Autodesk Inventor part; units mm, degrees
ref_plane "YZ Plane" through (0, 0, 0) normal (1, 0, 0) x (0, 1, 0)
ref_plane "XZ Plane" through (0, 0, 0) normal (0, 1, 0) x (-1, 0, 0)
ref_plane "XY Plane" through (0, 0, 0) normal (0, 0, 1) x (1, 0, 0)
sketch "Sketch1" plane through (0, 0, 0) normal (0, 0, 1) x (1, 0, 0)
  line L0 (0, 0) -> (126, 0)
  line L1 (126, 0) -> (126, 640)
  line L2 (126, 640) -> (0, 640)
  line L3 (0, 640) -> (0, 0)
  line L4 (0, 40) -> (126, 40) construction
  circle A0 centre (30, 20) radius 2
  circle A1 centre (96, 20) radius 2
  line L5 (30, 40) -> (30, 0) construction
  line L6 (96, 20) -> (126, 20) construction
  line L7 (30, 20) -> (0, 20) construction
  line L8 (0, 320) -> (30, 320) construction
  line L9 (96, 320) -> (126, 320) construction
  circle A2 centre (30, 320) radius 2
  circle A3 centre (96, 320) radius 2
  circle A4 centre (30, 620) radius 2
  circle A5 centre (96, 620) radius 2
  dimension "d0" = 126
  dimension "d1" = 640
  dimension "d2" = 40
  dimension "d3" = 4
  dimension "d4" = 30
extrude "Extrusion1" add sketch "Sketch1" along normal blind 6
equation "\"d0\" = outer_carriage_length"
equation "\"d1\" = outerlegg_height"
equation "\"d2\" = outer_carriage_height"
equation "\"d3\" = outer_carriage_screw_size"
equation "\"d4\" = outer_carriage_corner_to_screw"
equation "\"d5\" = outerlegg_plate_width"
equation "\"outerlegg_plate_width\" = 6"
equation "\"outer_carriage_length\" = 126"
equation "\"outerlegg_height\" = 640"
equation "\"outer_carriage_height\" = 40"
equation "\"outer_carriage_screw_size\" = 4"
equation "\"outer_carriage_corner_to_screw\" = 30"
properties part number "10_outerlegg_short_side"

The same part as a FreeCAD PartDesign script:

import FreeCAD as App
import Part
import Sketcher

V = App.Vector
Q = App.Units.Quantity


def add_polygon(sketch, points):
    """Adds a closed chain of lines whose ends are joined by coincident constraints."""
    first, n = sketch.GeometryCount, len(points)
    for a, b in zip(points, points[1:] + points[:1]):
        sketch.addGeometry(Part.LineSegment(App.Vector(*a, 0), App.Vector(*b, 0)), False)
    for i in range(n):
        sketch.addConstraint(Sketcher.Constraint("Coincident", first + i, 2, first + (i + 1) % n, 1))

doc = App.newDocument("Part")
body = doc.addObject("PartDesign::Body", "Body")

# Sketch on XY plane
sketch1 = body.newObject("Sketcher::SketchObject", "Sketch")
sketch1.AttachmentSupport = (doc.getObject("XY_Plane"), [""])
sketch1.MapMode = "FlatFace"
add_polygon(sketch1, [(0, 640), (0, 0), (126, 0), (126, 640)])  # lines 0-3
sketch1.addGeometry(Part.Circle(V(30, 20, 0), V(0, 0, 1), 2), False)  # 4
sketch1.addGeometry(Part.Circle(V(96, 20, 0), V(0, 0, 1), 2), False)  # 5
sketch1.addGeometry(Part.Circle(V(30, 320, 0), V(0, 0, 1), 2), False)  # 6
sketch1.addGeometry(Part.Circle(V(30, 620, 0), V(0, 0, 1), 2), False)  # 7
sketch1.addGeometry(Part.Circle(V(96, 320, 0), V(0, 0, 1), 2), False)  # 8
sketch1.addGeometry(Part.Circle(V(96, 620, 0), V(0, 0, 1), 2), False)  # 9
sketch1.addConstraint(Sketcher.Constraint("Vertical", 0))
sketch1.addConstraint(Sketcher.Constraint("Horizontal", 1))
sketch1.addConstraint(Sketcher.Constraint("Vertical", 2))
sketch1.addConstraint(Sketcher.Constraint("Horizontal", 3))
sketch1.addConstraint(Sketcher.Constraint("Coincident", 0, 2, -1, 1))
sketch1.addConstraint(Sketcher.Constraint("Equal", 4, 5))
sketch1.addConstraint(Sketcher.Constraint("Equal", 5, 6))
sketch1.addConstraint(Sketcher.Constraint("Equal", 6, 7))
sketch1.addConstraint(Sketcher.Constraint("Equal", 7, 8))
sketch1.addConstraint(Sketcher.Constraint("Equal", 8, 9))
sketch1.addConstraint(Sketcher.Constraint("Horizontal", 4, 3, 5, 3))
sketch1.addConstraint(Sketcher.Constraint("Horizontal", 6, 3, 8, 3))
sketch1.addConstraint(Sketcher.Constraint("Horizontal", 7, 3, 9, 3))
sketch1.addConstraint(Sketcher.Constraint("Vertical", 4, 3, 6, 3))
sketch1.addConstraint(Sketcher.Constraint("Vertical", 6, 3, 7, 3))
sketch1.addConstraint(Sketcher.Constraint("Vertical", 5, 3, 8, 3))
sketch1.addConstraint(Sketcher.Constraint("Vertical", 8, 3, 9, 3))
sketch1.addConstraint(Sketcher.Constraint("Diameter", 4, Q("4 mm")))
sketch1.addConstraint(Sketcher.Constraint("DistanceX", 1, 1, 1, 2, Q("126 mm")))
sketch1.addConstraint(Sketcher.Constraint("DistanceY", 0, 2, 0, 1, Q("640 mm")))
sketch1.addConstraint(Sketcher.Constraint("DistanceX", -1, 1, 4, 3, Q("30 mm")))
sketch1.addConstraint(Sketcher.Constraint("DistanceX", 5, 3, 1, 2, Q("30 mm")))
sketch1.addConstraint(Sketcher.Constraint("DistanceY", -1, 1, 4, 3, Q("20 mm")))
sketch1.addConstraint(Sketcher.Constraint("DistanceY", -1, 1, 6, 3, Q("320 mm")))
sketch1.addConstraint(Sketcher.Constraint("DistanceY", -1, 1, 7, 3, Q("620 mm")))
pad1 = body.newObject("PartDesign::Pad", "Pad")
pad1.Profile = sketch1
pad1.Length = 6

doc.recompute()
